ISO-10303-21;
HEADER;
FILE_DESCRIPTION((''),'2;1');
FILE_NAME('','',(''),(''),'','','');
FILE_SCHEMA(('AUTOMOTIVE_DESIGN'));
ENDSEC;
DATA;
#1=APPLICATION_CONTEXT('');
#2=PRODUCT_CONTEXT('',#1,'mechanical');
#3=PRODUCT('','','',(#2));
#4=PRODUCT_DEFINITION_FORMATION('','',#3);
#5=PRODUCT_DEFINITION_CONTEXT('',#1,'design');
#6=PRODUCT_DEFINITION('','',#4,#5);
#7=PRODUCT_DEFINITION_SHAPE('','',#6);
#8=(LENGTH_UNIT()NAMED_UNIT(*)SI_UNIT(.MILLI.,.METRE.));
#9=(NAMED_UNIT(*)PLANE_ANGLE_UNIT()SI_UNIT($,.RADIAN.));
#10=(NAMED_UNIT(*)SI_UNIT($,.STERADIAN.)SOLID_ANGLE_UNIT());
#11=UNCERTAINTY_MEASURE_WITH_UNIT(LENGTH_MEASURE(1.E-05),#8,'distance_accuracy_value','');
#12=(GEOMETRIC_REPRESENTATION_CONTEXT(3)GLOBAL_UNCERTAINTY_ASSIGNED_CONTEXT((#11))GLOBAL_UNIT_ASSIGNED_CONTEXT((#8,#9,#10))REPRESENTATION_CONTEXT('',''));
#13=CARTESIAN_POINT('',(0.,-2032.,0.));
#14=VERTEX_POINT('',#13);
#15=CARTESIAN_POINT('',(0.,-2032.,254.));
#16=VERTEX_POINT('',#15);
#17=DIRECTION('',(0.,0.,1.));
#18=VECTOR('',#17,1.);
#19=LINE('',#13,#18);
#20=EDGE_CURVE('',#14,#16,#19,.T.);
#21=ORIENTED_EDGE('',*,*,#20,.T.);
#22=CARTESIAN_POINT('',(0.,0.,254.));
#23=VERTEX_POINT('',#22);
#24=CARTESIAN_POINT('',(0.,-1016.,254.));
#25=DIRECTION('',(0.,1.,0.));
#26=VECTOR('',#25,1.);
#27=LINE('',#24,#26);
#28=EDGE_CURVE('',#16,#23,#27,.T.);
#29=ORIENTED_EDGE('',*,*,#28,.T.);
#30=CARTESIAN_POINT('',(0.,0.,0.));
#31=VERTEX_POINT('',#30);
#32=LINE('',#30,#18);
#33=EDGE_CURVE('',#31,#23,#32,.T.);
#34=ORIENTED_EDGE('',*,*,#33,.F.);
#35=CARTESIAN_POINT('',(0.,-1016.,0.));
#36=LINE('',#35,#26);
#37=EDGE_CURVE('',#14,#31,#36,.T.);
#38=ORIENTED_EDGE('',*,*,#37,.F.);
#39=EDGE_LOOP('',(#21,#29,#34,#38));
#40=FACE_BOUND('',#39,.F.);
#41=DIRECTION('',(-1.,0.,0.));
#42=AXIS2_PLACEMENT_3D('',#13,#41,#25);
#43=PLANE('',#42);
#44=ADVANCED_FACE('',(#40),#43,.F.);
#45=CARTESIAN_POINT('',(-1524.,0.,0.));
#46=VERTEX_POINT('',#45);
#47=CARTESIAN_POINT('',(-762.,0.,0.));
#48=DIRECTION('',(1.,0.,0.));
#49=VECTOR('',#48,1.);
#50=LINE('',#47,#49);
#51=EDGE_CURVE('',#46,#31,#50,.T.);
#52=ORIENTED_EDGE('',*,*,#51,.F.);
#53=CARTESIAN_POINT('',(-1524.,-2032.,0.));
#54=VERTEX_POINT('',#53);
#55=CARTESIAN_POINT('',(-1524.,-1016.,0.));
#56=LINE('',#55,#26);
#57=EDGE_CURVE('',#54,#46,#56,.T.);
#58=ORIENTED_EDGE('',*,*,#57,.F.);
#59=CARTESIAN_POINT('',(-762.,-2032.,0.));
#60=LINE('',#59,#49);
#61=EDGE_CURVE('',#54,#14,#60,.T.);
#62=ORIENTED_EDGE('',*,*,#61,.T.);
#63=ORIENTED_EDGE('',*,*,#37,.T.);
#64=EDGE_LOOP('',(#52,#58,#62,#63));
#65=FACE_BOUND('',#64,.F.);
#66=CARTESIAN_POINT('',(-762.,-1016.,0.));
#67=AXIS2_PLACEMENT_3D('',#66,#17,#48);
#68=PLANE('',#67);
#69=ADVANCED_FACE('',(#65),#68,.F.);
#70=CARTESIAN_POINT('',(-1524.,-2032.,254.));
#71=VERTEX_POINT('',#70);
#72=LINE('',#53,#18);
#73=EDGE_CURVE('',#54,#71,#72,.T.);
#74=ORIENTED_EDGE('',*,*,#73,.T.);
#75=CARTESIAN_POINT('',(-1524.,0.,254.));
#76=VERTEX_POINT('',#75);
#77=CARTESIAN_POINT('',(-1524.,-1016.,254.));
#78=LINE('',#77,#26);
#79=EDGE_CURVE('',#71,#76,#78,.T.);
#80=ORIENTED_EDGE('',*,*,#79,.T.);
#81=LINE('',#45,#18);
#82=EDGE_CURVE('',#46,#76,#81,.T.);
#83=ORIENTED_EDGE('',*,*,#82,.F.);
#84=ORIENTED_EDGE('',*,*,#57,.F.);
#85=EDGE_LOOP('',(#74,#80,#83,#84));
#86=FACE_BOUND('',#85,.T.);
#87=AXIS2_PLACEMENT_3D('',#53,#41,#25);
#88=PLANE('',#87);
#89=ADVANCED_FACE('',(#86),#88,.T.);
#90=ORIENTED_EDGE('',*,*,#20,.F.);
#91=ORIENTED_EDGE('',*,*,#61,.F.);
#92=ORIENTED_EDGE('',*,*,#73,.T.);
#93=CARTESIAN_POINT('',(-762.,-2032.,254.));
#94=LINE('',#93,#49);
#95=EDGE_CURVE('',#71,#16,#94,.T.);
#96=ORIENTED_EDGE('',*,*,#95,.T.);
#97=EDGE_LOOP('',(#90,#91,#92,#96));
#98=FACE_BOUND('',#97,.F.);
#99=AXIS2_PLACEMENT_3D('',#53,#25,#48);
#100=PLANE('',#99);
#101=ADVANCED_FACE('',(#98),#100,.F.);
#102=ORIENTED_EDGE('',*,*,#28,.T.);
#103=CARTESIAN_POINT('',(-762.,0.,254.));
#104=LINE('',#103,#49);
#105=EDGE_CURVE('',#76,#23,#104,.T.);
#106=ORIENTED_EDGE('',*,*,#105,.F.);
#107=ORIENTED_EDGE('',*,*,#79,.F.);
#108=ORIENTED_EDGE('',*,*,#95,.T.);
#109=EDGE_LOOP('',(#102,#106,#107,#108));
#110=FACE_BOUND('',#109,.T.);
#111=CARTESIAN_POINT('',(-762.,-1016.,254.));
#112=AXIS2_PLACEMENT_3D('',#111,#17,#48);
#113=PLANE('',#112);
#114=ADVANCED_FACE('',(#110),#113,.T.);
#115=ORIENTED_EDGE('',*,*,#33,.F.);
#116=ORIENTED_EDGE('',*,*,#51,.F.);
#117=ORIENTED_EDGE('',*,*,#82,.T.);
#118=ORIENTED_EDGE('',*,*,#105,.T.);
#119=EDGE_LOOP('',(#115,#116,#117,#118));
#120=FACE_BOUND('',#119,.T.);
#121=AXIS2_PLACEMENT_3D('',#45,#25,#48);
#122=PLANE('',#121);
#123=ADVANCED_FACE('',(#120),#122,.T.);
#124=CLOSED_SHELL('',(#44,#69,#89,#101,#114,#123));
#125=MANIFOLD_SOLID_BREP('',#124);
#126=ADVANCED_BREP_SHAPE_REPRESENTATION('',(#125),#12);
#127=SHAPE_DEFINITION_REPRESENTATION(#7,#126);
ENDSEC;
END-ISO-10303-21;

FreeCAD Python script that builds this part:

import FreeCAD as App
import Part
import Sketcher

V = App.Vector
Q = App.Units.Quantity

doc = App.newDocument("Part")
params = doc.addObject("Spreadsheet::Sheet", "Params")
for row, (alias, value) in enumerate([
    ("sketch1_width", "60 in"),
    ("sketch1_height", "80 in"),
    ("pad1_length", "10 in"),
], start=1):
    params.set(f"A{row}", alias)
    params.set(f"B{row}", "=" + value)
    params.setAlias(f"B{row}", alias)

body = doc.addObject("PartDesign::Body", "Body")

sketch1 = doc.addObject("Sketcher::SketchObject", "Sketch")
body.addObject(sketch1)
sketch1.AttachmentSupport = (doc.XY_Plane, [""])
sketch1.MapMode = "FlatFace"
sketch1.addGeometry([
    Part.LineSegment(V(-1524, 0, 0), V(-1524, -2032, 0)),
    Part.LineSegment(V(-1524, -2032, 0), V(0, -2032, 0)),
    Part.LineSegment(V(0, -2032, 0), V(0, 0, 0)),
    Part.LineSegment(V(0, 0, 0), V(-1524, 0, 0)),
], False)
sketch1.addConstraint([
    Sketcher.Constraint("Coincident", 0, 2, 1, 1),
    Sketcher.Constraint("Coincident", 1, 2, 2, 1),
    Sketcher.Constraint("Coincident", 2, 2, 3, 1),
    Sketcher.Constraint("Coincident", 3, 2, 0, 1),
    Sketcher.Constraint("Vertical", 0),
    Sketcher.Constraint("Horizontal", 1),
    Sketcher.Constraint("Vertical", 2),
    Sketcher.Constraint("Horizontal", 3),
    Sketcher.Constraint("Coincident", 2, 2, -1, 1),
    Sketcher.Constraint("DistanceX", 1, 1, 1, 2, Q("60 in")),
    Sketcher.Constraint("DistanceY", 0, 2, 0, 1, Q("80 in")),
])
sketch1.setExpression("Constraints[9]", "Params.sketch1_width")
sketch1.setExpression("Constraints[10]", "Params.sketch1_height")
pad1 = doc.addObject("PartDesign::Pad", "Pad")
body.addObject(pad1)
pad1.Profile = sketch1
pad1.setExpression("Length", "Params.pad1_length")

doc.recompute()
